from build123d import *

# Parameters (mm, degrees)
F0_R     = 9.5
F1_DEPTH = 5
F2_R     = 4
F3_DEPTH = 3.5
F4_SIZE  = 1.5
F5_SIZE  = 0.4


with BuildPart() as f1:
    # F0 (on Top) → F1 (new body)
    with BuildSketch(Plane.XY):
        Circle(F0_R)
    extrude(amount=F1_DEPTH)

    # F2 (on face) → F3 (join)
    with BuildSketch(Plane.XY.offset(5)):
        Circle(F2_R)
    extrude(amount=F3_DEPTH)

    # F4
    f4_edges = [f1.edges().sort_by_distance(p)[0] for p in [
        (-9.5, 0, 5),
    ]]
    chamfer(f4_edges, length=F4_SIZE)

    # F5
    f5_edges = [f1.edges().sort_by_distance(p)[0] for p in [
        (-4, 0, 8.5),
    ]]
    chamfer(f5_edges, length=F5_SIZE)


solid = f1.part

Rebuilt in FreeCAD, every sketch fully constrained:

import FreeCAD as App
import Part
import Sketcher
from FreeCAD import Vector
Q = App.Units.Quantity


def edges_at(feature, points):
    """Names of the edges that pass closest to the given points."""
    edges = feature.Shape.Edges
    near = lambda p: min(range(len(edges)), key=lambda i: edges[i].distToShape(Part.Vertex(*p))[0])
    return sorted({f"Edge{near(p) + 1}" for p in points})

doc = App.newDocument("Part")
body = doc.addObject("PartDesign::Body", "Body")

# Sketch on XY plane
sketch1 = body.newObject("Sketcher::SketchObject", "Sketch")
sketch1.AttachmentSupport = (doc.getObject("XY_Plane"), [""])
sketch1.MapMode = "FlatFace"
sketch1.addGeometry(Part.Circle(Vector(0, 0, 0), Vector(0, 0, 1), 9.5), False)
sketch1.addConstraint([
    Sketcher.Constraint("Coincident", 0, 3, -1, 1),
    Sketcher.Constraint("Diameter", 0, Q("19 mm")),
])
pad1 = body.newObject("PartDesign::Pad", "Pad")
pad1.Profile = sketch1
pad1.Length = 5

# Sketch on XY plane
sketch2 = body.newObject("Sketcher::SketchObject", "Sketch001")
sketch2.AttachmentSupport = (doc.getObject("XY_Plane"), [""])
sketch2.MapMode = "FlatFace"
sketch2.AttachmentOffset = App.Placement(Vector(0, 0, 5), App.Rotation())
sketch2.addGeometry(Part.Circle(Vector(0, 0, 0), Vector(0, 0, 1), 4), False)
sketch2.addConstraint([
    Sketcher.Constraint("Coincident", 0, 3, -1, 1),
    Sketcher.Constraint("Diameter", 0, Q("8 mm")),
])
pad2 = body.newObject("PartDesign::Pad", "Pad001")
pad2.Profile = sketch2
pad2.Length = 3.5
doc.recompute()

chamfer = body.newObject("PartDesign::Chamfer", "Chamfer")
chamfer.Base = (pad2, edges_at(pad2, [(-9.5, 0, 5)]))
chamfer.Size = 1.5
doc.recompute()

chamfer2 = body.newObject("PartDesign::Chamfer", "Chamfer001")
chamfer2.Base = (chamfer, edges_at(chamfer, [(-4, 0, 8.5)]))
chamfer2.Size = 0.4

doc.recompute()
